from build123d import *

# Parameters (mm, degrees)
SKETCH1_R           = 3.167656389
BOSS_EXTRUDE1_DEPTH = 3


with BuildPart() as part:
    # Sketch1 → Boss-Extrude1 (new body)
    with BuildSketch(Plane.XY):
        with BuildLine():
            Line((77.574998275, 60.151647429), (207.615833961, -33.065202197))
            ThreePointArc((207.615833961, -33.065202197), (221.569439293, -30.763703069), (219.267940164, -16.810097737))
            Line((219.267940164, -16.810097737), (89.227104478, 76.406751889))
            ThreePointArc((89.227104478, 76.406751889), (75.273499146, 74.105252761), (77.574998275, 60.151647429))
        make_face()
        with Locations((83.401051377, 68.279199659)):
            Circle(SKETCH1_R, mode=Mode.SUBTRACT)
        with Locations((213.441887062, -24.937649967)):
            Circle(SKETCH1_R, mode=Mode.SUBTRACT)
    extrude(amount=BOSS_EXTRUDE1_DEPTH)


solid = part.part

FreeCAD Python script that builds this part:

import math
import FreeCAD as App
import Part
import Sketcher
from FreeCAD import Vector

doc = App.newDocument("Part")
body = doc.addObject("PartDesign::Body", "Body")

# Sketch on XY plane
sketch1 = doc.addObject("Sketcher::SketchObject", "Sketch")
body.addObject(sketch1)
sketch1.AttachmentSupport = (doc.XY_Plane, [""])
sketch1.MapMode = "FlatFace"
sketch1.addGeometry(Part.LineSegment(Vector(77.574998, 60.151647, 0), Vector(207.615834, -33.065202, 0)), False)
sketch1.addGeometry(Part.ArcOfCircle(Part.Circle(Vector(213.441887, -24.93765, 0), Vector(0, 0, 1), 10), math.radians(-125.633996), math.radians(54.366004)), False)
sketch1.addGeometry(Part.LineSegment(Vector(219.26794, -16.810098, 0), Vector(89.227104, 76.406752, 0)), False)
sketch1.addGeometry(Part.ArcOfCircle(Part.Circle(Vector(83.401051, 68.2792, 0), Vector(0, 0, 1), 10), math.radians(54.366004), math.radians(234.366004)), False)
sketch1.addGeometry(Part.Circle(Vector(213.441887, -24.93765, 0), Vector(0, 0, 1), 3.167656), False)
sketch1.addGeometry(Part.Circle(Vector(83.401051, 68.2792, 0), Vector(0, 0, 1), 3.167656), False)
sketch1.addConstraint(Sketcher.Constraint("Tangent", 0, 2, 1, 1))
sketch1.addConstraint(Sketcher.Constraint("Tangent", 1, 2, 2, 1))
sketch1.addConstraint(Sketcher.Constraint("Tangent", 2, 2, 3, 1))
sketch1.addConstraint(Sketcher.Constraint("Tangent", 3, 2, 0, 1))
sketch1.addConstraint(Sketcher.Constraint("Coincident", 4, 3, 1, 3))
sketch1.addConstraint(Sketcher.Constraint("Coincident", 5, 3, 3, 3))
sketch1.addConstraint(Sketcher.Constraint("Equal", 1, 3))
sketch1.addConstraint(Sketcher.Constraint("Equal", 4, 5))
sketch1.addConstraint(Sketcher.Constraint("Radius", 1, 10.0))
sketch1.addConstraint(Sketcher.Constraint("Distance", 0, 160.0))
sketch1.addConstraint(Sketcher.Constraint("Diameter", 4, 6.335313))
sketch1.addConstraint(Sketcher.Constraint("DistanceX", -1, 1, 3, 2, 77.574998))
sketch1.addConstraint(Sketcher.Constraint("DistanceY", -1, 1, 3, 3, 68.2792))
sketch1.addConstraint(Sketcher.Constraint("DistanceY", 0, 2, 5, 3, 101.344402))
pad1 = doc.addObject("PartDesign::Pad", "Pad")
body.addObject(pad1)
pad1.Profile = sketch1
pad1.Length = 3

doc.recompute()
